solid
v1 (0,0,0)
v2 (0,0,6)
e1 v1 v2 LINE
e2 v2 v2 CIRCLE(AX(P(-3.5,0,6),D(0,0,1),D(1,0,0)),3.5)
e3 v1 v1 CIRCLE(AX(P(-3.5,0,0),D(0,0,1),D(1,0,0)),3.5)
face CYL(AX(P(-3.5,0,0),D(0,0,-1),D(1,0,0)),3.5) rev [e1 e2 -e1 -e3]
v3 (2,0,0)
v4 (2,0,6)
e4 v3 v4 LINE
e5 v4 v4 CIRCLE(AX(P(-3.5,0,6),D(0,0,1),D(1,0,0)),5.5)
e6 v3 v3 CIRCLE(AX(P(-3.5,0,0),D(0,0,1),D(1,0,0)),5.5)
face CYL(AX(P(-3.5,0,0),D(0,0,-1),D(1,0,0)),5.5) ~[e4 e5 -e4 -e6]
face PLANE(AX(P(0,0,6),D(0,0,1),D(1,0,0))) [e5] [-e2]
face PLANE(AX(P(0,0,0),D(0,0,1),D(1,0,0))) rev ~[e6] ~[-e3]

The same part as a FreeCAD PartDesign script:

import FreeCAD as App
import Part
import Sketcher

doc = App.newDocument("Part")
body = doc.addObject("PartDesign::Body", "Body")

# Sketch on XY plane
sketch1 = body.newObject("Sketcher::SketchObject", "Sketch")
sketch1.AttachmentSupport = (doc.getObject("XY_Plane"), [""])
sketch1.MapMode = "FlatFace"
sketch1.addGeometry([
    Part.Circle(App.Vector(-3.5, 0, 0), App.Vector(0, 0, 1), 5.5),
    Part.Circle(App.Vector(-3.5, 0, 0), App.Vector(0, 0, 1), 3.5),
], False)
sketch1.addConstraint([
    Sketcher.Constraint("Coincident", 1, 3, 0, 3),
    Sketcher.Constraint("PointOnObject", 0, 3, -1),
    Sketcher.Constraint("Diameter", 0, 11.0),
    Sketcher.Constraint("Diameter", 1, 7.0),
    Sketcher.Constraint("DistanceX", 0, 3, -1, 1, 3.5),
])
pad1 = body.newObject("PartDesign::Pad", "Pad")
pad1.Profile = sketch1
pad1.Length = 6

doc.recompute()
